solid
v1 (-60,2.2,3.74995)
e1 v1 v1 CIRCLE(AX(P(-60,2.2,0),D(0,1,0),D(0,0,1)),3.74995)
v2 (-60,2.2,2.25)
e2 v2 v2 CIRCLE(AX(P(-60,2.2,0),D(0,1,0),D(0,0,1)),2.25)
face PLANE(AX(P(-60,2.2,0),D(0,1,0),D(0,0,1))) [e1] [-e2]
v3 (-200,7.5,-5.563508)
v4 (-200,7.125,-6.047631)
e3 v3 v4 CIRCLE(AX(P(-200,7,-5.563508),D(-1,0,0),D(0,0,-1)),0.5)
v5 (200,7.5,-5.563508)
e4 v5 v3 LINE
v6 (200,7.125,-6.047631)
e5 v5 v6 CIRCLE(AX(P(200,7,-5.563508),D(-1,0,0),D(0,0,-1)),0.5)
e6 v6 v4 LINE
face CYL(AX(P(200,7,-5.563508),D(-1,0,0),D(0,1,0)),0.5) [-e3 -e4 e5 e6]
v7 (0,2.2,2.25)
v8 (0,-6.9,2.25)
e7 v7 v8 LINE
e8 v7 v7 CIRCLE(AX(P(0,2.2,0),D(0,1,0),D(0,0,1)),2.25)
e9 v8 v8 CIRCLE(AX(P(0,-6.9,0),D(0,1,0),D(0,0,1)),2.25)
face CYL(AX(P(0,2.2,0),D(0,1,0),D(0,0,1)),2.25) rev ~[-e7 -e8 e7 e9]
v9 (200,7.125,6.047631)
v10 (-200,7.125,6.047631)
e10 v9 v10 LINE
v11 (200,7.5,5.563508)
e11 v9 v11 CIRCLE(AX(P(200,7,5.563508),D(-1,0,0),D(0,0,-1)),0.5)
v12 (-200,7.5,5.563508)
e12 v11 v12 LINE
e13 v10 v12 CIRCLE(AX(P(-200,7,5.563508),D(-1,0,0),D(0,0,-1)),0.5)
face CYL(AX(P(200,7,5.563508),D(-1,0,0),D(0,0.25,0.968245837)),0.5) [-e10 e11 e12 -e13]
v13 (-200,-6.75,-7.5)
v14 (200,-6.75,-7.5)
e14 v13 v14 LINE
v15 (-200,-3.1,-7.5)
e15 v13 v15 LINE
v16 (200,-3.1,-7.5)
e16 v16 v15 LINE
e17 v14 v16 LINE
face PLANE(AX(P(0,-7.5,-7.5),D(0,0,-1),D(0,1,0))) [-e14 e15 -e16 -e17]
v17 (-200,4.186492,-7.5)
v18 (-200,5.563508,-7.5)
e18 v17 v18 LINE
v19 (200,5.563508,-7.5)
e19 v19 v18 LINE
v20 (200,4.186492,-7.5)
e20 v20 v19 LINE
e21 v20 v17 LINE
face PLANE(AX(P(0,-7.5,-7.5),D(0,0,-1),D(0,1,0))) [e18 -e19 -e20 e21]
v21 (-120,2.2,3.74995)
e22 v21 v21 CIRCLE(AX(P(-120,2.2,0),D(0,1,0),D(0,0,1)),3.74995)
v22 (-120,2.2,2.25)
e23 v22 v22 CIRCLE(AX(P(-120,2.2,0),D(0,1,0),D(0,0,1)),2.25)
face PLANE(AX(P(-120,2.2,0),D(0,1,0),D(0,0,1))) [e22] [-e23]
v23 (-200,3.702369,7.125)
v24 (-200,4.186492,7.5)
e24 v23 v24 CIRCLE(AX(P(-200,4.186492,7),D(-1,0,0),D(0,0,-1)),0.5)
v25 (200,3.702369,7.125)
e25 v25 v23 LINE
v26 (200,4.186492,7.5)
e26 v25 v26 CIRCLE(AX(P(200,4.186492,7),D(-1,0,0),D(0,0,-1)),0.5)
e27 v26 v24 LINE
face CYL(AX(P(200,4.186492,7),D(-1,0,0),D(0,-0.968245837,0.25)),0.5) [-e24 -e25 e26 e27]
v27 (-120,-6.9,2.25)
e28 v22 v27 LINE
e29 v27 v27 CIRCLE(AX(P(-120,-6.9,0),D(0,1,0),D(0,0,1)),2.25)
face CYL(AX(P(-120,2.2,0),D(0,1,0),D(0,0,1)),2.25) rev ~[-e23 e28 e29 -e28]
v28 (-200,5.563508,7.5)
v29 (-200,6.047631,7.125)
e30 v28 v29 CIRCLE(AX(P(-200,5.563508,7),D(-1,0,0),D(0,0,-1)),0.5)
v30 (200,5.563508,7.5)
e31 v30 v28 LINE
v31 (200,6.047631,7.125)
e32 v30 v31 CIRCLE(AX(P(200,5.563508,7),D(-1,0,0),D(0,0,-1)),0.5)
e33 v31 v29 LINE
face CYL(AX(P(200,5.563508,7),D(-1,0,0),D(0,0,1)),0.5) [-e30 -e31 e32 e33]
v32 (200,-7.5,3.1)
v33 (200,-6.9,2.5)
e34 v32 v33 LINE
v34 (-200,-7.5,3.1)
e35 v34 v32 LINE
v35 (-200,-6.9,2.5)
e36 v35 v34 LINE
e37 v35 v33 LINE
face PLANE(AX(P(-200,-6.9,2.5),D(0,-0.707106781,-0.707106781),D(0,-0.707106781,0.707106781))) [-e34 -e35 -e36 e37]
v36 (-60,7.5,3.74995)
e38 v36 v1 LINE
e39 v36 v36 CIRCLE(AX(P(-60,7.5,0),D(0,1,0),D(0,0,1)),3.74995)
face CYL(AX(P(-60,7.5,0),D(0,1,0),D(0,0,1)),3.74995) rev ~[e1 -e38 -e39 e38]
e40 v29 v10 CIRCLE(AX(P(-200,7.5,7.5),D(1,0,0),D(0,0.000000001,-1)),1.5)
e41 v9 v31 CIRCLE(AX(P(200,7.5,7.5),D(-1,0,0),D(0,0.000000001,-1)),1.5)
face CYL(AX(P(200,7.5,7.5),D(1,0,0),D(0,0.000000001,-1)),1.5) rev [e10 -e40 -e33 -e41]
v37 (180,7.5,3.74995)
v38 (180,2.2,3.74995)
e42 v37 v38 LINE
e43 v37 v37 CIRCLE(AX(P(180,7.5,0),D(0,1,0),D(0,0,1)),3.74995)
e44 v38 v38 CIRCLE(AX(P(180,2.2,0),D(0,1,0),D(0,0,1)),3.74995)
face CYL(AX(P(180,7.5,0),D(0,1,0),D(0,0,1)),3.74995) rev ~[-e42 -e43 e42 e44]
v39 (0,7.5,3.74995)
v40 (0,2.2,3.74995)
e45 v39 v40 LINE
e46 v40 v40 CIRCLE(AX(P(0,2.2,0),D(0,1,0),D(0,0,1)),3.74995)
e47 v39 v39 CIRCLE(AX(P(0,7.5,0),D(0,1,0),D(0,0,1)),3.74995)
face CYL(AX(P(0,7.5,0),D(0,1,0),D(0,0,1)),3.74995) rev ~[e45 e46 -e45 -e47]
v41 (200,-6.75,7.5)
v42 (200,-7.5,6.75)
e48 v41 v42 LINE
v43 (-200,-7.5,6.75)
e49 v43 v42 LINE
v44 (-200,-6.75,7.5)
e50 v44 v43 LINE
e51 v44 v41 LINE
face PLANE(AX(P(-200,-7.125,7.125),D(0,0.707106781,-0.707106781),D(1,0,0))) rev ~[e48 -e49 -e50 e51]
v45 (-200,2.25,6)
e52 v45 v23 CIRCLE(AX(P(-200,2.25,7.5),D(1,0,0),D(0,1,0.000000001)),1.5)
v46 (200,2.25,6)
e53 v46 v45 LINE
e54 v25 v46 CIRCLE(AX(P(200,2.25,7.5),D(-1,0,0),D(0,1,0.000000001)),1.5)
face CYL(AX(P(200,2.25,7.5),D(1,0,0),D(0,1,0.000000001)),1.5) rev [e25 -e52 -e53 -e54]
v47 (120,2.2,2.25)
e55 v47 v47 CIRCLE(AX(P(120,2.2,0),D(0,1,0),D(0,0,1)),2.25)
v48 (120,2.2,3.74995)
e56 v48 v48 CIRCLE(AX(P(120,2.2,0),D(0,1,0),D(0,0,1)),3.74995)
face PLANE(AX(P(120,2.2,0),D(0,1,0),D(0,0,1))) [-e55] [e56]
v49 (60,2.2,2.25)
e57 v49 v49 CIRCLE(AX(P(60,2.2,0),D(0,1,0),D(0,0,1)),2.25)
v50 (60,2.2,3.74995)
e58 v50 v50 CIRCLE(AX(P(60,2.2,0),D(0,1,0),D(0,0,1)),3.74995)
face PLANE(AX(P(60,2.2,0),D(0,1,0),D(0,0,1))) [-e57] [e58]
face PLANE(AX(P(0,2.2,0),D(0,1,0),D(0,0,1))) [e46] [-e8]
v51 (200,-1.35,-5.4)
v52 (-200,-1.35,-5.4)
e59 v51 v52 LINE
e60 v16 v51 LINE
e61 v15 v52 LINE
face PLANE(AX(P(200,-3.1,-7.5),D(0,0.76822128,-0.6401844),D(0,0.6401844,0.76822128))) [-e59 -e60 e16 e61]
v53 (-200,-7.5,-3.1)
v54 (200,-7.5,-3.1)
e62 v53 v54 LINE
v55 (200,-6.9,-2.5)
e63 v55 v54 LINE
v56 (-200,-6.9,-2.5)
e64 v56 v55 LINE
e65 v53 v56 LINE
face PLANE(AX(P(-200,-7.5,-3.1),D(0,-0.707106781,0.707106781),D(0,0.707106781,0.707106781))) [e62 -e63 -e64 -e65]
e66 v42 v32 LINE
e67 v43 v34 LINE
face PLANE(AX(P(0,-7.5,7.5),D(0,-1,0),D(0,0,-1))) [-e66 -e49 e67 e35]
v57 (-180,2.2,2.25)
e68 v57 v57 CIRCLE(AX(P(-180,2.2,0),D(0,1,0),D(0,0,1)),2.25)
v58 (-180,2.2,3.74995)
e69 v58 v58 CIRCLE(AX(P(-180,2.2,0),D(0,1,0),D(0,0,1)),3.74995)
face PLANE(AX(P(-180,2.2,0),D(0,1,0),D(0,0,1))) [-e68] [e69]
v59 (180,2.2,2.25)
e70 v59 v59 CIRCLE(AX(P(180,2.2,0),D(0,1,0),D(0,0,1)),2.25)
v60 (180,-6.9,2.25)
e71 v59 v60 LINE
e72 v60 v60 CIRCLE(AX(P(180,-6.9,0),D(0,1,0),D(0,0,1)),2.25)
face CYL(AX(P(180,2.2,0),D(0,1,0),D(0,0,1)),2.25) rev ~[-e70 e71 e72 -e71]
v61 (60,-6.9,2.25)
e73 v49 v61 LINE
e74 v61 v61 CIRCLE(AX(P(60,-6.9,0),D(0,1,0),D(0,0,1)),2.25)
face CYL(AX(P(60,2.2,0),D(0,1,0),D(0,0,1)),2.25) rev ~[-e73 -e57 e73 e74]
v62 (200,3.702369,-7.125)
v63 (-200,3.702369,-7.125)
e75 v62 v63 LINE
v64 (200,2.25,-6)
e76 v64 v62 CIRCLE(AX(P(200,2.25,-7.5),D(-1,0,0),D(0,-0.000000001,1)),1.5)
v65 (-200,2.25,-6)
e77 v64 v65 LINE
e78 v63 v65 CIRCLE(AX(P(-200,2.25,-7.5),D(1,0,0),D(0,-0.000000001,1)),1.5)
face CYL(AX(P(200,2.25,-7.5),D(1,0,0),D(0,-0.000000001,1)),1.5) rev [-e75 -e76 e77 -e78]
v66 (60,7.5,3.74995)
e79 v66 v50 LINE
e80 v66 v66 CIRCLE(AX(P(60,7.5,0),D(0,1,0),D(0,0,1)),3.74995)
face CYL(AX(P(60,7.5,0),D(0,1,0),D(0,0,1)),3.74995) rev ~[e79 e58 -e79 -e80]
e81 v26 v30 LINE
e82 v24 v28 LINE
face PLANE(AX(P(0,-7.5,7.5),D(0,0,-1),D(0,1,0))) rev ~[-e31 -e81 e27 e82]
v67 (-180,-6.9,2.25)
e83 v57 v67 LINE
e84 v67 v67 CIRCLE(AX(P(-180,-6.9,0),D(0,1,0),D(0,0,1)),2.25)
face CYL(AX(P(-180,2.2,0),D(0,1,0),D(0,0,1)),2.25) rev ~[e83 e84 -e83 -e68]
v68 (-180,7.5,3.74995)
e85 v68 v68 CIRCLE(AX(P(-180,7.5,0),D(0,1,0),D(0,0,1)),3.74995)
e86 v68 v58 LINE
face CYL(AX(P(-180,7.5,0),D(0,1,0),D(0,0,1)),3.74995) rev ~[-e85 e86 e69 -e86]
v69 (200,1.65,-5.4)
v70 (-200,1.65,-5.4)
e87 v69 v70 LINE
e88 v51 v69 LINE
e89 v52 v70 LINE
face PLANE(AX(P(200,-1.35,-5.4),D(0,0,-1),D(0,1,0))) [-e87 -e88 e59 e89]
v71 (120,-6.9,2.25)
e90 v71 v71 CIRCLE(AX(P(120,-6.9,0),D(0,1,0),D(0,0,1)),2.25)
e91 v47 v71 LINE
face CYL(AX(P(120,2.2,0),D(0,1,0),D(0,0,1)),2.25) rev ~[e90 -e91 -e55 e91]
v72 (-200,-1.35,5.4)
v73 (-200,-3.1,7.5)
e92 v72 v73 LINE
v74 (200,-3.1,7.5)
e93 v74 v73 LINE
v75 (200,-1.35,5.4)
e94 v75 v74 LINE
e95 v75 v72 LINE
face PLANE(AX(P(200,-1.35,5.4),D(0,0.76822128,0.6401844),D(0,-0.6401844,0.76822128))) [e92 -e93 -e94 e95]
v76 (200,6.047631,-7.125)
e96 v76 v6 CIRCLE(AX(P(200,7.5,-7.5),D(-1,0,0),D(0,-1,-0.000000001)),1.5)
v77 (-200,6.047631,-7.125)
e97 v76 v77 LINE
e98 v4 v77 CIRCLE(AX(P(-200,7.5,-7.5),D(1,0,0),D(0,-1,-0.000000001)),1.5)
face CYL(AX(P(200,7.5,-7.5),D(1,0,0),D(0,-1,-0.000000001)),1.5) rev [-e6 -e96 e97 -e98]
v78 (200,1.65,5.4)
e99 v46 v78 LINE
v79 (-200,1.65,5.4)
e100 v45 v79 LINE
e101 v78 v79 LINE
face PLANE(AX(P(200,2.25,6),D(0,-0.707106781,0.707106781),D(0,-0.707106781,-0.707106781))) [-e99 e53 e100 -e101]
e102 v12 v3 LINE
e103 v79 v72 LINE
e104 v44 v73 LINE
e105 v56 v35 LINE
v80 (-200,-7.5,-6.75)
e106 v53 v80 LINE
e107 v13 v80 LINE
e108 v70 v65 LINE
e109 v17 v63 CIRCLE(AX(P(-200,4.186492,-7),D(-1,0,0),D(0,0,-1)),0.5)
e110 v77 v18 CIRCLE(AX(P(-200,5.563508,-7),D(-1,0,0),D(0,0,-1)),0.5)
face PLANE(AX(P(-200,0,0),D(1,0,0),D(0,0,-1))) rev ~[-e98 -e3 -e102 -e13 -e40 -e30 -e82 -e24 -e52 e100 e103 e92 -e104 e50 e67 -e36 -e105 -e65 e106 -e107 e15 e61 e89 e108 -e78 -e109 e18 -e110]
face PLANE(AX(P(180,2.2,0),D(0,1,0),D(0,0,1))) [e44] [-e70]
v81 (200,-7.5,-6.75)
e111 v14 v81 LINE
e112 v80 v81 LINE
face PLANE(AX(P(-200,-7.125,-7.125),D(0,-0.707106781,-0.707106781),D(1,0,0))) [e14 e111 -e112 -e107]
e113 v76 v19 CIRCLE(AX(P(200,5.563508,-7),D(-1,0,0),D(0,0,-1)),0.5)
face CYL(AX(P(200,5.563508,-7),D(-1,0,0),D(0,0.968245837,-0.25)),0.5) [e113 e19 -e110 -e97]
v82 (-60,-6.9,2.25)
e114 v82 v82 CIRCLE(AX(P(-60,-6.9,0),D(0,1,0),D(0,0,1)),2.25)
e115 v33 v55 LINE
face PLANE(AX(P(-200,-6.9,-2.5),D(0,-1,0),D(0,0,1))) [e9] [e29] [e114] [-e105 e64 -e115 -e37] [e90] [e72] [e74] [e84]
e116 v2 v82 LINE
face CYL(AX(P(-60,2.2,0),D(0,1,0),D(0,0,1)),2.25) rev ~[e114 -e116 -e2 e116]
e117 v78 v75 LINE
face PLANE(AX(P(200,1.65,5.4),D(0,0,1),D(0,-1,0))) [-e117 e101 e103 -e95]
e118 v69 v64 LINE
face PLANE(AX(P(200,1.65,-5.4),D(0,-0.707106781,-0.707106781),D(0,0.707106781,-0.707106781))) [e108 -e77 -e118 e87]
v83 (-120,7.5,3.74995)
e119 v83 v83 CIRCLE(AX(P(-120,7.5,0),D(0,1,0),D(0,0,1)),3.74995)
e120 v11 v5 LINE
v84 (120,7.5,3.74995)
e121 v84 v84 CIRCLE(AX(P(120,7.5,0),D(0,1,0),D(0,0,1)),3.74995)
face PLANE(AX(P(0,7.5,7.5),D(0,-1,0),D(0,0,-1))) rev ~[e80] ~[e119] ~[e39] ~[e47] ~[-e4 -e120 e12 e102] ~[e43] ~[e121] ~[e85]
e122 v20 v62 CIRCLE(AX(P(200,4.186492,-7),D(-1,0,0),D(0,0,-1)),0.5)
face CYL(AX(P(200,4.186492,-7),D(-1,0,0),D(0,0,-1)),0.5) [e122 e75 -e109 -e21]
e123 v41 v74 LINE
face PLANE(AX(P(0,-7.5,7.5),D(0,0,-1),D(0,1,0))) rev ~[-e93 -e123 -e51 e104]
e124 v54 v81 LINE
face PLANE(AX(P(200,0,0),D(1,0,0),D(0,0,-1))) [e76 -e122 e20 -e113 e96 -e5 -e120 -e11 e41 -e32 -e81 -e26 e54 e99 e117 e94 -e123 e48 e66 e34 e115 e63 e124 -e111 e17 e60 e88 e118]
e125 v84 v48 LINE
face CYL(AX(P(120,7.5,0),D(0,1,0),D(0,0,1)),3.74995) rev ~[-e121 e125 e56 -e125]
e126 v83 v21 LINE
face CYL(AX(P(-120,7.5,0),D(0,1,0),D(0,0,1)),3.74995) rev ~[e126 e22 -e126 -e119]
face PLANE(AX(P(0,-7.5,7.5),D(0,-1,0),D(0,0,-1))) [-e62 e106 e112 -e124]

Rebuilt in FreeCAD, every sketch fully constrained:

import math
import FreeCAD as App
import Part
import Sketcher


def edges_at(feature, points):
    """Names of the edges that pass closest to the given points."""
    edges = feature.Shape.Edges
    near = lambda p: min(range(len(edges)), key=lambda i: edges[i].distToShape(Part.Vertex(*p))[0])
    return sorted({f"Edge{near(p) + 1}" for p in points})


def add_polygon(sketch, points):
    """Adds a closed chain of lines whose ends are joined by coincident constraints."""
    first, n = sketch.GeometryCount, len(points)
    for a, b in zip(points, points[1:] + points[:1]):
        sketch.addGeometry(Part.LineSegment(App.Vector(*a, 0), App.Vector(*b, 0)), False)
    for i in range(n):
        sketch.addConstraint(Sketcher.Constraint("Coincident", first + i, 2, first + (i + 1) % n, 1))

doc = App.newDocument("Part")
params = doc.addObject("Spreadsheet::Sheet", "Params")
for row, (alias, value) in enumerate([
    ("sketch1_width", "15 mm"),
    ("pad1_length", "400 mm"),
    ("chamfer_size", "0.75 mm"),
    ("pocket1_length", "5.3 mm"),
    ("sketch3_diameter", "4.5 mm"),
    ("linearpattern_pitch", "60 mm"),
    ("sketch4_radius", "1.5 mm"),
    ("sketch5_radius", "1.5 mm"),
    ("sketch5_width", "3 mm"),
    ("sketch5_width2", "6.85 mm"),
    ("fillet_radius", "0.5 mm"),
    ("sketch6_height", "5 mm"),
    ("sketch6_height2", "6.2 mm"),
], start=1):
    params.set(f"A{row}", alias)
    params.set(f"B{row}", "=" + value)
    params.setAlias(f"B{row}", alias)

body = doc.addObject("PartDesign::Body", "Body")

sketch1 = body.newObject("Sketcher::SketchObject", "Sketch")
sketch1.AttachmentSupport = (doc.getObject("YZ_Plane"), [""])
sketch1.MapMode = "FlatFace"
add_polygon(sketch1, [(8, 8), (-8, 8), (-8, -8), (8, -8)])
sketch1.addConstraint(Sketcher.Constraint("Horizontal", 0))
sketch1.addConstraint(Sketcher.Constraint("Vertical", 1))
sketch1.addConstraint(Sketcher.Constraint("Horizontal", 2))
sketch1.addConstraint(Sketcher.Constraint("Vertical", 3))
sketch1.addConstraint(Sketcher.Constraint("Symmetric", 0, 2, 2, 2, -1, 1))
sketch1.addConstraint(Sketcher.Constraint("Equal", 2, 1))
sketch1.addConstraint(Sketcher.Constraint("DistanceX", 0, 2, 0, 1, 15.0))
sketch1.setExpression("Constraints[10]", "Params.sketch1_width")
pad1 = body.newObject("PartDesign::Pad", "Pad")
pad1.Profile = sketch1
pad1.setExpression("Length", "Params.pad1_length")
pad1.Midplane = True
doc.recompute()

chamfer = body.newObject("PartDesign::Chamfer", "Chamfer")
chamfer.Base = (pad1, edges_at(pad1, [(0, -7.5, -7.5), (0, -7.5, 7.5)]))
chamfer.setExpression("Size", "Params.chamfer_size")

sketch2 = body.newObject("Sketcher::SketchObject", "Sketch001")
sketch2.AttachmentSupport = (doc.getObject("XZ_Plane"), [""])
sketch2.MapMode = "FlatFace"
sketch2.AttachmentOffset = App.Placement(App.Vector(0, 0, -7.5), App.Rotation())
sketch2.addGeometry(Part.Circle(App.Vector(-180, 0, 0), App.Vector(0, 0, 1), 3.7), False)
sketch2.addConstraint(Sketcher.Constraint("PointOnObject", 0, 3, -1))
sketch2.addConstraint(Sketcher.Constraint("DistanceX", 0, 3, -1, 1, 180.0))
sketch2.addConstraint(Sketcher.Constraint("Diameter", 0, 7.4999))
pocket1 = body.newObject("PartDesign::Pocket", "Pocket")
pocket1.Profile = sketch2
pocket1.setExpression("Length", "Params.pocket1_length")
pocket1.Reversed = True

sketch3 = body.newObject("Sketcher::SketchObject", "Sketch002")
sketch3.AttachmentSupport = (doc.getObject("XZ_Plane"), [""])
sketch3.MapMode = "FlatFace"
sketch3.AttachmentOffset = App.Placement(App.Vector(0, 0, -2.2), App.Rotation())
sketch3.addGeometry(Part.Circle(App.Vector(-180, 0, 0), App.Vector(0, 0, 1), 2.2), False)
sketch3.addConstraint(Sketcher.Constraint("PointOnObject", 0, 3, -1))
sketch3.addConstraint(Sketcher.Constraint("Diameter", 0, 4.5))
sketch3.addConstraint(Sketcher.Constraint("DistanceX", 0, 3, -1, 1, 180.0))
sketch3.setExpression("Constraints[1]", "Params.sketch3_diameter")
pocket2 = body.newObject("PartDesign::Pocket", "Pocket001")
pocket2.Profile = sketch3
pocket2.Type = "ThroughAll"
pocket2.Reversed = True
doc.recompute()

linearpattern = body.newObject("PartDesign::LinearPattern", "LinearPattern")
linearpattern.Originals = [pocket1, pocket2]
linearpattern.Direction = (doc.getObject("X_Axis"), [""])
linearpattern.Mode = "offset"
linearpattern.setExpression("Offset", "Params.linearpattern_pitch")
linearpattern.Occurrences = 7
body.Tip = linearpattern

sketch4 = body.newObject("Sketcher::SketchObject", "Sketch003")
sketch4.AttachmentSupport = (doc.getObject("YZ_Plane"), [""])
sketch4.MapMode = "FlatFace"
sketch4.AttachmentOffset = App.Placement(App.Vector(0, 0, 200), App.Rotation())
sketch4.addGeometry(Part.LineSegment(App.Vector(7.5, 6, 0), App.Vector(7.5, 7.5, 0)), False)
sketch4.addGeometry(Part.LineSegment(App.Vector(7.5, 7.5, 0), App.Vector(6, 7.5, 0)), False)
sketch4.addGeometry(Part.ArcOfCircle(Part.Circle(App.Vector(7.5, 7.5, 0), App.Vector(0, 0, 1), 1.5), math.radians(180), math.radians(270)), False)
sketch4.addGeometry(Part.LineSegment(App.Vector(6, -7.5, 0), App.Vector(7.5, -7.5, 0)), False)
sketch4.addGeometry(Part.LineSegment(App.Vector(7.5, -7.5, 0), App.Vector(7.5, -6, 0)), False)
sketch4.addGeometry(Part.ArcOfCircle(Part.Circle(App.Vector(7.5, -7.5, 0), App.Vector(0, 0, 1), 1.5), math.radians(90), math.radians(180)), False)
sketch4.addConstraint(Sketcher.Constraint("Coincident", 0, 2, 1, 1))
sketch4.addConstraint(Sketcher.Constraint("Coincident", 1, 2, 2, 1))
sketch4.addConstraint(Sketcher.Constraint("Coincident", 2, 2, 0, 1))
sketch4.addConstraint(Sketcher.Constraint("Coincident", 3, 2, 4, 1))
sketch4.addConstraint(Sketcher.Constraint("Coincident", 4, 2, 5, 1))
sketch4.addConstraint(Sketcher.Constraint("Coincident", 5, 2, 3, 1))
sketch4.addConstraint(Sketcher.Constraint("Vertical", 0))
sketch4.addConstraint(Sketcher.Constraint("Horizontal", 1))
sketch4.addConstraint(Sketcher.Constraint("Horizontal", 3))
sketch4.addConstraint(Sketcher.Constraint("Vertical", 4))
sketch4.addConstraint(Sketcher.Constraint("Coincident", 0, 2, 2, 3))
sketch4.addConstraint(Sketcher.Constraint("Coincident", 3, 2, 5, 3))
sketch4.addConstraint(Sketcher.Constraint("Equal", 2, 5))
sketch4.addConstraint(Sketcher.Constraint("Symmetric", 2, 3, 5, 3, -1))
sketch4.addConstraint(Sketcher.Constraint("Radius", 2, 1.5))
sketch4.addConstraint(Sketcher.Constraint("DistanceX", -1, 1, 1, 2, 6.0))
sketch4.addConstraint(Sketcher.Constraint("DistanceY", -1, 1, 2, 2, 6.0))
sketch4.setExpression("Constraints[14]", "Params.sketch4_radius")
pocket3 = body.newObject("PartDesign::Pocket", "Pocket002")
pocket3.Profile = sketch4
pocket3.Type = "ThroughAll"

sketch5 = body.newObject("Sketcher::SketchObject", "Sketch004")
sketch5.AttachmentSupport = (doc.getObject("YZ_Plane"), [""])
sketch5.MapMode = "FlatFace"
sketch5.AttachmentOffset = App.Placement(App.Vector(0, 0, 200), App.Rotation())
sketch5.addGeometry(Part.LineSegment(App.Vector(1.6, 5.4, 0), App.Vector(2.2, 6, 0)), False)
sketch5.addGeometry(Part.ArcOfCircle(Part.Circle(App.Vector(2.3, 7.5, 0), App.Vector(0, 0, 1), 1.5), math.radians(-90), math.radians(0)), False)
sketch5.addGeometry(Part.LineSegment(App.Vector(3.8, 7.5, 0), App.Vector(-3.1, 7.5, 0)), False)
sketch5.addGeometry(Part.LineSegment(App.Vector(-3.1, 7.5, 0), App.Vector(-1.4, 5.4, 0)), False)
sketch5.addGeometry(Part.LineSegment(App.Vector(-1.4, 5.4, 0), App.Vector(1.6, 5.4, 0)), False)
sketch5.addGeometry(Part.LineSegment(App.Vector(-3.1, -7.5, 0), App.Vector(3.8, -7.5, 0)), False)
sketch5.addGeometry(Part.ArcOfCircle(Part.Circle(App.Vector(2.3, -7.5, 0), App.Vector(0, 0, 1), 1.5), math.radians(0), math.radians(90)), False)
sketch5.addGeometry(Part.LineSegment(App.Vector(2.2, -6, 0), App.Vector(1.6, -5.4, 0)), False)
sketch5.addGeometry(Part.LineSegment(App.Vector(1.6, -5.4, 0), App.Vector(-1.4, -5.4, 0)), False)
sketch5.addGeometry(Part.LineSegment(App.Vector(-1.4, -5.4, 0), App.Vector(-3.1, -7.5, 0)), False)
sketch5.addConstraint(Sketcher.Constraint("Coincident", 0, 2, 1, 1))
sketch5.addConstraint(Sketcher.Constraint("Coincident", 1, 2, 2, 1))
sketch5.addConstraint(Sketcher.Constraint("Coincident", 2, 2, 3, 1))
sketch5.addConstraint(Sketcher.Constraint("Coincident", 3, 2, 4, 1))
sketch5.addConstraint(Sketcher.Constraint("Coincident", 4, 2, 0, 1))
sketch5.addConstraint(Sketcher.Constraint("Coincident", 5, 2, 6, 1))
sketch5.addConstraint(Sketcher.Constraint("Coincident", 6, 2, 7, 1))
sketch5.addConstraint(Sketcher.Constraint("Coincident", 7, 2, 8, 1))
sketch5.addConstraint(Sketcher.Constraint("Coincident", 8, 2, 9, 1))
sketch5.addConstraint(Sketcher.Constraint("Coincident", 9, 2, 5, 1))
sketch5.addConstraint(Sketcher.Constraint("Horizontal", 2))
sketch5.addConstraint(Sketcher.Constraint("Horizontal", 4))
sketch5.addConstraint(Sketcher.Constraint("Horizontal", 5))
sketch5.addConstraint(Sketcher.Constraint("Horizontal", 8))
sketch5.addConstraint(Sketcher.Constraint("Equal", 1, 6))
sketch5.addConstraint(Sketcher.Constraint("Symmetric", 1, 3, 6, 3, -1))
sketch5.addConstraint(Sketcher.Constraint("Symmetric", 4, 2, 7, 2, -1))
sketch5.addConstraint(Sketcher.Constraint("Symmetric", 2, 2, 9, 2, -1))
sketch5.addConstraint(Sketcher.Constraint("Perpendicular", 0, 7))
sketch5.addConstraint(Sketcher.Constraint("Horizontal", 6, 3, 5, 2))
sketch5.addConstraint(Sketcher.Constraint("Vertical", 6, 3, 0, 2))
sketch5.addConstraint(Sketcher.Constraint("Vertical", 0, 2, 6, 2))
sketch5.addConstraint(Sketcher.Constraint("Vertical", 3, 2, 8, 2))
sketch5.addConstraint(Sketcher.Constraint("Radius", 1, 1.5))
sketch5.addConstraint(Sketcher.Constraint("DistanceX", 4, 1, 4, 2, 3.0))
sketch5.addConstraint(Sketcher.Constraint("DistanceY", -1, 1, 0, 2, 6.0))
sketch5.addConstraint(Sketcher.Constraint("DistanceX", 2, 2, 2, 1, 6.85))
sketch5.addConstraint(Sketcher.Constraint("DistanceX", 2, 2, -1, 1, 3.1))
sketch5.addConstraint(Sketcher.Constraint("DistanceY", -1, 1, 3, 2, 5.4))
sketch5.setExpression("Constraints[23]", "Params.sketch5_radius")
sketch5.setExpression("Constraints[24]", "Params.sketch5_width")
sketch5.setExpression("Constraints[26]", "Params.sketch5_width2")
pocket4 = body.newObject("PartDesign::Pocket", "Pocket003")
pocket4.Profile = sketch5
pocket4.Type = "ThroughAll"
doc.recompute()

fillet = body.newObject("PartDesign::Fillet", "Fillet")
fillet.Base = (pocket4, edges_at(pocket4, [
    (0, 3.75, -7.5),
    (0, 6, 7.5),
    (0, 7.5, 6),
    (0, 7.5, -6),
    (0, 6, -7.5),
    (0, 3.75, 7.5),
]))
fillet.setExpression("Radius", "Params.fillet_radius")

sketch6 = body.newObject("Sketcher::SketchObject", "Sketch005")
sketch6.AttachmentSupport = (doc.getObject("YZ_Plane"), [""])
sketch6.MapMode = "FlatFace"
sketch6.AttachmentOffset = App.Placement(App.Vector(0, 0, -200), App.Rotation())
add_polygon(sketch6, [(-6.9, -2.5), (-7.5, -3.1), (-7.5, 3.1), (-6.9, 2.5)])
sketch6.addConstraint(Sketcher.Constraint("Vertical", 1))
sketch6.addConstraint(Sketcher.Constraint("Vertical", 3))
sketch6.addConstraint(Sketcher.Constraint("Perpendicular", 0, 2))
sketch6.addConstraint(Sketcher.Constraint("Equal", 0, 2))
sketch6.addConstraint(Sketcher.Constraint("DistanceY", 3, 2, 3, 1, 5.0))
sketch6.addConstraint(Sketcher.Constraint("DistanceY", 1, 1, 1, 2, 6.2))
sketch6.addConstraint(Sketcher.Constraint("DistanceX", 0, 2, -1, 1, 7.5))
sketch6.addConstraint(Sketcher.Constraint("DistanceY", 0, 2, -1, 1, 3.1))
sketch6.setExpression("Constraints[8]", "Params.sketch6_height")
sketch6.setExpression("Constraints[9]", "Params.sketch6_height2")
pocket5 = body.newObject("PartDesign::Pocket", "Pocket004")
pocket5.Profile = sketch6
pocket5.Type = "ThroughAll"
pocket5.Reversed = True

doc.recompute()
